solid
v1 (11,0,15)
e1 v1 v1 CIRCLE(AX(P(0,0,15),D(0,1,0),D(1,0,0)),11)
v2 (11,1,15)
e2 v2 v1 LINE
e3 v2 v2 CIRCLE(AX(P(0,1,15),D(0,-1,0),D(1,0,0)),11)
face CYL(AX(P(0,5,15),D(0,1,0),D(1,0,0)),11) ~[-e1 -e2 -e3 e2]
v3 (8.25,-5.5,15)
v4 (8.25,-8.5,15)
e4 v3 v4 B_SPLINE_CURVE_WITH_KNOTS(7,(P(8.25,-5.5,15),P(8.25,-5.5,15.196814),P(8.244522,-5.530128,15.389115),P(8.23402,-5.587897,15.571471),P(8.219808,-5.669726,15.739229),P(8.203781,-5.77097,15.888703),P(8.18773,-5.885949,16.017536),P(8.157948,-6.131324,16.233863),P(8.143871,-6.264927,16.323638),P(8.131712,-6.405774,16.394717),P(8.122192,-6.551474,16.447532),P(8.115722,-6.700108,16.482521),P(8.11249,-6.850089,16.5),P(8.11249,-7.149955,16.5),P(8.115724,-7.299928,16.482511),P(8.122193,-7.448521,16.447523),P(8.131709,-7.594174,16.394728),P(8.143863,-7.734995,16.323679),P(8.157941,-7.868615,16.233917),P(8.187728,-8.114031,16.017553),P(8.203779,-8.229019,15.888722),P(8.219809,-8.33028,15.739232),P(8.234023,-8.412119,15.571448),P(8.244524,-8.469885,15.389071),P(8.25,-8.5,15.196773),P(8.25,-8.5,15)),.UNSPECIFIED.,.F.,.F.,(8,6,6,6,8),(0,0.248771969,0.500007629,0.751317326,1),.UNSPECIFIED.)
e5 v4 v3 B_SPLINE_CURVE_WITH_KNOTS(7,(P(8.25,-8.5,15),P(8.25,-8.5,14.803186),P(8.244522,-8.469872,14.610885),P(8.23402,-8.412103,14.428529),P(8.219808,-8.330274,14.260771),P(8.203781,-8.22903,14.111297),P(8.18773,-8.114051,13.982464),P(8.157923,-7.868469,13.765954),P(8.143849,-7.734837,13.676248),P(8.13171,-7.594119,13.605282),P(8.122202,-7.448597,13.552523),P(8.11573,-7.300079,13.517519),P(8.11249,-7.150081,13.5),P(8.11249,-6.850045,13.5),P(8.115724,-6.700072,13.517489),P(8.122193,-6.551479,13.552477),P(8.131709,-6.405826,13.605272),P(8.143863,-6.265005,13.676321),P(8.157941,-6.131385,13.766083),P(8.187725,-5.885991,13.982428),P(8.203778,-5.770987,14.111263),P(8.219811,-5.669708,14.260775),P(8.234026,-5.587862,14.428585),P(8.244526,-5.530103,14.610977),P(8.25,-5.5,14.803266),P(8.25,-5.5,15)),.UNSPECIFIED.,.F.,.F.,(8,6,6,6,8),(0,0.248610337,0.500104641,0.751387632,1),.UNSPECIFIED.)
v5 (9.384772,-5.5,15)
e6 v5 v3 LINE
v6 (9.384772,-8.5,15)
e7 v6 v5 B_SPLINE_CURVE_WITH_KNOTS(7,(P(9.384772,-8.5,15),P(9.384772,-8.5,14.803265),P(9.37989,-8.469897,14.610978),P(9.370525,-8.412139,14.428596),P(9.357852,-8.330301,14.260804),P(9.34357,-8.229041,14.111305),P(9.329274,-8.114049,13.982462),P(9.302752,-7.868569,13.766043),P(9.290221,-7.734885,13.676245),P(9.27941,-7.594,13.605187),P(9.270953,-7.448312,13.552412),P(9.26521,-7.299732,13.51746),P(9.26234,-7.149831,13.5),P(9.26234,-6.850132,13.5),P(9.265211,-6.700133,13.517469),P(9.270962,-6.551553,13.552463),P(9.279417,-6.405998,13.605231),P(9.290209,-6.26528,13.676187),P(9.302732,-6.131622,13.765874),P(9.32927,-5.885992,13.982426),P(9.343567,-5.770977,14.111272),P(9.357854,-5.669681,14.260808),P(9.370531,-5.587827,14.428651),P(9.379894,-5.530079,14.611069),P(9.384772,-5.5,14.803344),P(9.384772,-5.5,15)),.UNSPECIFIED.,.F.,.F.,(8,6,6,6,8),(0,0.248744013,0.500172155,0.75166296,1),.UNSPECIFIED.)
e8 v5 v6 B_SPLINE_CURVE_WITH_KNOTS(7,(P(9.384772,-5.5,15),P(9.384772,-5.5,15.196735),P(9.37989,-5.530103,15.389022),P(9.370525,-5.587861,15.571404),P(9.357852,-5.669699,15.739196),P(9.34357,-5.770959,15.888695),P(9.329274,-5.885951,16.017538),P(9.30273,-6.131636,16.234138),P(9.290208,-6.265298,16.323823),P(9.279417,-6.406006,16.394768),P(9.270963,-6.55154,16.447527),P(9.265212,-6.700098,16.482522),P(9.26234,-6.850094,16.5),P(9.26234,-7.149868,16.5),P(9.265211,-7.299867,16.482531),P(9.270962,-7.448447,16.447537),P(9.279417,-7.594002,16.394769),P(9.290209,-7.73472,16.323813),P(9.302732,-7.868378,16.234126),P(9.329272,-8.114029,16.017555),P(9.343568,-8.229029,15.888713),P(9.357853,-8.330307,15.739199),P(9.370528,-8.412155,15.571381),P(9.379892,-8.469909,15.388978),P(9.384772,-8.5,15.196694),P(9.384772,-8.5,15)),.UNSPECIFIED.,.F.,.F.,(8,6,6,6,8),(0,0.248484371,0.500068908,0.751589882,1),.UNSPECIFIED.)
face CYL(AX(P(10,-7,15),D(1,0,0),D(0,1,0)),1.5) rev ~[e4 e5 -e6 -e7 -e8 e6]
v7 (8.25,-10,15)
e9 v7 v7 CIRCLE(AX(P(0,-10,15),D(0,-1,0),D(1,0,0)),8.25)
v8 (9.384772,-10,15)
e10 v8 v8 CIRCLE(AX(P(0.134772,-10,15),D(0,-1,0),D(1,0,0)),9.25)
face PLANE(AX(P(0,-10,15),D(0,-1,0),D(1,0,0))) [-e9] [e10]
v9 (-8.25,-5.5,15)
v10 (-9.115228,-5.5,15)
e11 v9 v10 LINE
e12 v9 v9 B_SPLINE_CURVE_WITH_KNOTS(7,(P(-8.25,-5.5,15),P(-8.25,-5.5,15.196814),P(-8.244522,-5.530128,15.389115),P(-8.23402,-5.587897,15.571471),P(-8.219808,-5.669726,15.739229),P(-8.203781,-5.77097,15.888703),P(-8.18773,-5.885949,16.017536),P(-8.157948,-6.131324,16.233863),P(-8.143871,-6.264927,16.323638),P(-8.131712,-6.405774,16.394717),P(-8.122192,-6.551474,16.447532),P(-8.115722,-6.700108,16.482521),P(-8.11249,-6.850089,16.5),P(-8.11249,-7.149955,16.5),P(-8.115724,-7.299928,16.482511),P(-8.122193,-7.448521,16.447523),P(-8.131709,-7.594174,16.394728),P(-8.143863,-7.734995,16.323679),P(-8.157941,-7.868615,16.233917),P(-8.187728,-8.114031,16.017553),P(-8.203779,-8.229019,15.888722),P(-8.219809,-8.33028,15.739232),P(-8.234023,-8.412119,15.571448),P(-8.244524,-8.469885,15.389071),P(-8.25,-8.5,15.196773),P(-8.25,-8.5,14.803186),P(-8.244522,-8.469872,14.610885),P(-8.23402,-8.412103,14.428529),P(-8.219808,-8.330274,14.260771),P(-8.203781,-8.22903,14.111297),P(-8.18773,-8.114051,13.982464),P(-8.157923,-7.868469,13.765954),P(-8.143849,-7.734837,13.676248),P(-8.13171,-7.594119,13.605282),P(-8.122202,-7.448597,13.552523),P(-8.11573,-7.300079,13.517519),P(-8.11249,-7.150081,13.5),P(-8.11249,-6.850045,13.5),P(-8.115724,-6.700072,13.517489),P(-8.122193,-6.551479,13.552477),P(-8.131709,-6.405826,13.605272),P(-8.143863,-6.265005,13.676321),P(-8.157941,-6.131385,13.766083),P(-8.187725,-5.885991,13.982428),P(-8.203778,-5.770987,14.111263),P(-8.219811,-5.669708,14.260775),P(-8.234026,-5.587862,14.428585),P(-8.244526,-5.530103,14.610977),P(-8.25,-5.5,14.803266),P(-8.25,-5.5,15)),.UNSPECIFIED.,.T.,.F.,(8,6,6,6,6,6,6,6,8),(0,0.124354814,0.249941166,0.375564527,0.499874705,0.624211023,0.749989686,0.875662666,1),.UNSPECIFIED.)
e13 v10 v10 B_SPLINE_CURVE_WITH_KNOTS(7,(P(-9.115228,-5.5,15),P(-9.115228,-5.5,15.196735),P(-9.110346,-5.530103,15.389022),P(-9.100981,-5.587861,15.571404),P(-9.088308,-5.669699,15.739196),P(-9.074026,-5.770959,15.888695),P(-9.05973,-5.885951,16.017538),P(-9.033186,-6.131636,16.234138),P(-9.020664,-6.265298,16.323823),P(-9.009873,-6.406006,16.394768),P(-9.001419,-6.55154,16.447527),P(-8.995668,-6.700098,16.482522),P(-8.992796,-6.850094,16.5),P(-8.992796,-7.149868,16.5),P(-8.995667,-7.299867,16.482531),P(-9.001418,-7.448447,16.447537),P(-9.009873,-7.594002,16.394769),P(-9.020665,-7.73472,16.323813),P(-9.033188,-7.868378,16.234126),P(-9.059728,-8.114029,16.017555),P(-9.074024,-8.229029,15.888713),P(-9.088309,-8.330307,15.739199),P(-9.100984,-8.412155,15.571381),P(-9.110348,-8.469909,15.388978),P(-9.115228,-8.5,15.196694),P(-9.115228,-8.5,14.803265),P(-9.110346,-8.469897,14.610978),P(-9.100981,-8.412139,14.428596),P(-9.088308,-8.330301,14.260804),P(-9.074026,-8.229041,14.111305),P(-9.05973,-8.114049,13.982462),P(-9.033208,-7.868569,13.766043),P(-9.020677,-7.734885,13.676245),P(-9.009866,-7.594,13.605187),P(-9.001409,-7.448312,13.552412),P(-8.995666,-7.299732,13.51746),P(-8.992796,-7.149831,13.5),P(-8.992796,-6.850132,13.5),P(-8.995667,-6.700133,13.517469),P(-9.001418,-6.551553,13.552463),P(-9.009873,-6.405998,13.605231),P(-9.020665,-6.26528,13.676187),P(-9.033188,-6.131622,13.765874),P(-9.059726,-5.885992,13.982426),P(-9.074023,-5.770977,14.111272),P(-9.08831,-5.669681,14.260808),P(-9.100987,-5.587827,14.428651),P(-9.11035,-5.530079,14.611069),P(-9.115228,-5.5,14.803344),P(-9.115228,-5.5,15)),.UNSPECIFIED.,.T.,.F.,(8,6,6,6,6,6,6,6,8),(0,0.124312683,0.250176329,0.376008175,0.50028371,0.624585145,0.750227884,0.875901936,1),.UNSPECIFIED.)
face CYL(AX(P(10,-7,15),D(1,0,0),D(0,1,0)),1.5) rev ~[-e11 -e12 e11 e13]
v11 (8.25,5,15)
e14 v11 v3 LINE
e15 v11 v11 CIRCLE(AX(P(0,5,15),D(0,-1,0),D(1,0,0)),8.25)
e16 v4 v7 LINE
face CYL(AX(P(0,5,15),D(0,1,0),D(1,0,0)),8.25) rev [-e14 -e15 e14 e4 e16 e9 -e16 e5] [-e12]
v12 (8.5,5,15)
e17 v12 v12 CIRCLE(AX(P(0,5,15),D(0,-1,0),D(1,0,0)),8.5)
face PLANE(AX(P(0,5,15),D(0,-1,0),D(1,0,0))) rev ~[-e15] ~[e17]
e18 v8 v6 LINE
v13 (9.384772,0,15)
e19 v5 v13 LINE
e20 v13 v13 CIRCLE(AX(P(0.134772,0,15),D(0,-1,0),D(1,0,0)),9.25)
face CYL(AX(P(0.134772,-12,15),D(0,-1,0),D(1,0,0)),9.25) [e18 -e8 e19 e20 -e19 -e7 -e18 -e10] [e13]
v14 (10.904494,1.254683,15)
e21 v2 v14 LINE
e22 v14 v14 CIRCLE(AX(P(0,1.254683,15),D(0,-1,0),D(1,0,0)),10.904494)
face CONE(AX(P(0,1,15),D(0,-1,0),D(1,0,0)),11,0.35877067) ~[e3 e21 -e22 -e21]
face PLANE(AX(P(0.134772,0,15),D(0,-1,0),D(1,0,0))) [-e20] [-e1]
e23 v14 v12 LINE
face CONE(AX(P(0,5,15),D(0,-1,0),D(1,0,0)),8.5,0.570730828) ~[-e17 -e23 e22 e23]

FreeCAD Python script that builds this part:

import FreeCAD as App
import Part
import Sketcher

V = App.Vector


def edges_at(feature, points):
    """Names of the edges that pass closest to the given points."""
    edges = feature.Shape.Edges
    near = lambda p: min(range(len(edges)), key=lambda i: edges[i].distToShape(Part.Vertex(*p))[0])
    return sorted({f"Edge{near(p) + 1}" for p in points})

doc = App.newDocument("Part")
params = doc.addObject("Spreadsheet::Sheet", "Params")
for row, (alias, value) in enumerate([
    ("sketch1_diameter", "22 mm"),
    ("sketch1_diameter2", "16.5 mm"),
    ("pad1_length", "15 mm"),
    ("sketch2_diameter", "22.5 mm"),
    ("sketch2_diameter2", "18.5 mm"),
    ("pocket1_length", "12 mm"),
    ("chamfer_size", "4 mm"),
    ("chamfer_size2", "1.5 mm"),
    ("sketch3_diameter", "2.5 mm"),
    ("pocket2_length", "25 mm"),
    ("chamfer2_size", "4 mm"),
    ("chamfer2_size2", "1 mm"),
    ("sketch4_diameter", "3 mm"),
    ("pocket3_length", "20 mm"),
], start=1):
    params.set(f"A{row}", alias)
    params.set(f"B{row}", "=" + value)
    params.setAlias(f"B{row}", alias)

body = doc.addObject("PartDesign::Body", "Body")

# Sketch on XZ plane
sketch1 = body.newObject("Sketcher::SketchObject", "Sketch")
sketch1.AttachmentSupport = (doc.getObject("XZ_Plane"), [""])
sketch1.MapMode = "FlatFace"
sketch1.AttachmentOffset = App.Placement(V(0, 0, -10), App.Rotation())
sketch1.addGeometry(Part.Circle(V(0, 15, 0), V(0, 0, 1), 11), False)
sketch1.addGeometry(Part.Circle(V(0, 15, 0), V(0, 0, 1), 8), False)
sketch1.addConstraint(Sketcher.Constraint("Coincident", 1, 3, 0, 3))
sketch1.addConstraint(Sketcher.Constraint("PointOnObject", 0, 3, -2))
sketch1.addConstraint(Sketcher.Constraint("Diameter", 0, 22.0))
sketch1.addConstraint(Sketcher.Constraint("Diameter", 1, 16.5))
sketch1.addConstraint(Sketcher.Constraint("DistanceY", -1, 1, 0, 3, 15.0))
sketch1.setExpression("Constraints[2]", "Params.sketch1_diameter")
sketch1.setExpression("Constraints[3]", "Params.sketch1_diameter2")
pad1 = body.newObject("PartDesign::Pad", "Pad")
pad1.Profile = sketch1
pad1.setExpression("Length", "Params.pad1_length")

# Sketch on XZ plane
sketch2 = body.newObject("Sketcher::SketchObject", "Sketch001")
sketch2.AttachmentSupport = (doc.getObject("XZ_Plane"), [""])
sketch2.MapMode = "FlatFace"
sketch2.AttachmentOffset = App.Placement(V(0, 0, 7), App.Rotation())
sketch2.addGeometry(Part.Circle(V(0, 15, 0), V(0, 0, 1), 11), False)
sketch2.addGeometry(Part.Circle(V(0, 15, 0), V(0, 0, 1), 9), False)
sketch2.addConstraint(Sketcher.Constraint("Coincident", 1, 3, 0, 3))
sketch2.addConstraint(Sketcher.Constraint("Diameter", 0, 22.5))
sketch2.addConstraint(Sketcher.Constraint("Diameter", 1, 18.5))
sketch2.addConstraint(Sketcher.Constraint("DistanceY", -1, 1, 0, 3, 15.0))
sketch2.addConstraint(Sketcher.Constraint("DistanceX", -1, 1, 0, 3, 0.134772))
sketch2.setExpression("Constraints[1]", "Params.sketch2_diameter")
sketch2.setExpression("Constraints[2]", "Params.sketch2_diameter2")
pocket1 = body.newObject("PartDesign::Pocket", "Pocket")
pocket1.Profile = sketch2
pocket1.setExpression("Length", "Params.pocket1_length")
doc.recompute()

chamfer = body.newObject("PartDesign::Chamfer", "Chamfer")
chamfer.Base = (pocket1, edges_at(pocket1, [(-11, 10, 15)]))
chamfer.ChamferType = "Two distances"
chamfer.setExpression("Size", "Params.chamfer_size")
chamfer.setExpression("Size2", "Params.chamfer_size2")

# Sketch on XY plane
sketch3 = body.newObject("Sketcher::SketchObject", "Sketch002")
sketch3.AttachmentSupport = (doc.getObject("XY_Plane"), [""])
sketch3.MapMode = "FlatFace"
sketch3.AttachmentOffset = App.Placement(V(0, 0, 5), App.Rotation())
sketch3.addGeometry(Part.Circle(V(0, -3, 0), V(0, 0, 1), 1.2), False)
sketch3.addConstraint(Sketcher.Constraint("Diameter", 0, 2.5))
sketch3.addConstraint(Sketcher.Constraint("DistanceX", -1, 1, 0, 3, 0.028156))
sketch3.addConstraint(Sketcher.Constraint("DistanceY", 0, 3, -1, 1, 3.033275))
sketch3.setExpression("Constraints[0]", "Params.sketch3_diameter")
pocket2 = body.newObject("PartDesign::Pocket", "Pocket001")
pocket2.Profile = sketch3
pocket2.setExpression("Length", "Params.pocket2_length")
doc.recompute()

chamfer2 = body.newObject("PartDesign::Chamfer", "Chamfer001")
chamfer2.Base = (pocket2, edges_at(pocket2, [(-9.5, 10, 15)]))
chamfer2.ChamferType = "Two distances"
chamfer2.setExpression("Size", "Params.chamfer2_size")
chamfer2.setExpression("Size2", "Params.chamfer2_size2")

# Sketch on YZ plane
sketch4 = body.newObject("Sketcher::SketchObject", "Sketch003")
sketch4.AttachmentSupport = (doc.getObject("YZ_Plane"), [""])
sketch4.MapMode = "FlatFace"
sketch4.AttachmentOffset = App.Placement(V(0, 0, 10), App.Rotation())
sketch4.addGeometry(Part.Circle(V(-2, 15, 0), V(0, 0, 1), 1.5), False)
sketch4.addConstraint(Sketcher.Constraint("Diameter", 0, 3.0))
sketch4.addConstraint(Sketcher.Constraint("DistanceX", 0, 3, -1, 1, 2.0))
sketch4.addConstraint(Sketcher.Constraint("DistanceY", -1, 1, 0, 3, 15.0))
sketch4.setExpression("Constraints[0]", "Params.sketch4_diameter")
pocket3 = body.newObject("PartDesign::Pocket", "Pocket002")
pocket3.Profile = sketch4
pocket3.setExpression("Length", "Params.pocket3_length")
body2 = doc.addObject("PartDesign::Body", "Body001")
doc.recompute()

body.Placement = App.Placement(V(0, -5, 0), App.Rotation(V(0, 0, 1), 0))
boolean = body2.newObject("PartDesign::Boolean", "Boolean")
boolean.Type = "Fuse"
boolean.addObjects([body])

doc.recompute()
